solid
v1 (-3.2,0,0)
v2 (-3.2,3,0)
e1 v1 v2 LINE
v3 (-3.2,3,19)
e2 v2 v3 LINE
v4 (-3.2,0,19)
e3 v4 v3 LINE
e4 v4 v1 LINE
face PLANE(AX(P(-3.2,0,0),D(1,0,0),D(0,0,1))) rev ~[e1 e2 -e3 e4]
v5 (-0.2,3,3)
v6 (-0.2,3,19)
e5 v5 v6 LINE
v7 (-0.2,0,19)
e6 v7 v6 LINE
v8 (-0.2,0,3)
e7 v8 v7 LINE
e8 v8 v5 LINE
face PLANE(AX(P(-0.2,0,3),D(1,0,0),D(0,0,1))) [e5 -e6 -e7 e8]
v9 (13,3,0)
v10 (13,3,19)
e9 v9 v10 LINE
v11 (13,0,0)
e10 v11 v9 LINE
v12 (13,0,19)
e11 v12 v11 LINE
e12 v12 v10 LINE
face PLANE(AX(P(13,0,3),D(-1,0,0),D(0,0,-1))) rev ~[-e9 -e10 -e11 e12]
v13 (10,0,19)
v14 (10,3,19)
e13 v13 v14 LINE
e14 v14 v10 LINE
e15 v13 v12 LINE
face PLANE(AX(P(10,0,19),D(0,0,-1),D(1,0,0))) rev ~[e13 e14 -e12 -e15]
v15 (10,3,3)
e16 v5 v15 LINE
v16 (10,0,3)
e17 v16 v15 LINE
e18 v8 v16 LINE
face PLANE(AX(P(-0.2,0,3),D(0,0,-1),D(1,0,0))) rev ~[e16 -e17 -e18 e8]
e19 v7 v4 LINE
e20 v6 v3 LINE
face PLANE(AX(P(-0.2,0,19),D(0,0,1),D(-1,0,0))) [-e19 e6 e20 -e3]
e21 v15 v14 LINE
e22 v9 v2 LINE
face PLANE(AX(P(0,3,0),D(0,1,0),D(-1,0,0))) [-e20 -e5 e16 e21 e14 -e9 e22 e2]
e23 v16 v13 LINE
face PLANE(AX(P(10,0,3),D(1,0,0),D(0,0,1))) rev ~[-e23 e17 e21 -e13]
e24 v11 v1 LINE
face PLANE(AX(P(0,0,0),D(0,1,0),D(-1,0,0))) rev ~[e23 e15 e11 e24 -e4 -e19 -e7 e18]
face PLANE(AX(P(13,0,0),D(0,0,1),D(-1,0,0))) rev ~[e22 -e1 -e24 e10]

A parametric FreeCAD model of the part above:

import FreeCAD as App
import Part
import Sketcher


def add_polygon(sketch, points):
    """Adds a closed chain of lines whose ends are joined by coincident constraints."""
    first, n = sketch.GeometryCount, len(points)
    for a, b in zip(points, points[1:] + points[:1]):
        sketch.addGeometry(Part.LineSegment(App.Vector(*a, 0), App.Vector(*b, 0)), False)
    for i in range(n):
        sketch.addConstraint(Sketcher.Constraint("Coincident", first + i, 2, first + (i + 1) % n, 1))

doc = App.newDocument("Part")
body = doc.addObject("PartDesign::Body", "Body")

# Sketch on XZ plane
sketch1 = body.newObject("Sketcher::SketchObject", "Sketch")
sketch1.AttachmentSupport = (doc.getObject("XZ_Plane"), [""])
sketch1.MapMode = "FlatFace"
add_polygon(sketch1, [(13, 0), (-3.2, 0), (-3.2, 19), (-0.2, 19), (-0.2, 3), (10, 3), (10, 19), (13, 19)])  # lines 0-7
sketch1.addConstraint(Sketcher.Constraint("Horizontal", 0))
sketch1.addConstraint(Sketcher.Constraint("Vertical", 1))
sketch1.addConstraint(Sketcher.Constraint("Horizontal", 2))
sketch1.addConstraint(Sketcher.Constraint("Vertical", 3))
sketch1.addConstraint(Sketcher.Constraint("Horizontal", 4))
sketch1.addConstraint(Sketcher.Constraint("Vertical", 5))
sketch1.addConstraint(Sketcher.Constraint("Horizontal", 6))
sketch1.addConstraint(Sketcher.Constraint("Vertical", 7))
sketch1.addConstraint(Sketcher.Constraint("PointOnObject", 0, 2, -1))
sketch1.addConstraint(Sketcher.Constraint("Horizontal", 2, 2, 5, 2))
sketch1.addConstraint(Sketcher.Constraint("Equal", 2, 6))
sketch1.addConstraint(Sketcher.Constraint("DistanceX", 2, 1, 2, 2, 3.0))
sketch1.addConstraint(Sketcher.Constraint("DistanceY", 3, 2, 3, 1, 16.0))
sketch1.addConstraint(Sketcher.Constraint("DistanceX", 0, 2, 0, 1, 16.2))
sketch1.addConstraint(Sketcher.Constraint("DistanceY", -1, 1, 3, 2, 3.0))
sketch1.addConstraint(Sketcher.Constraint("DistanceX", -1, 1, 4, 2, 10.0))
pad1 = body.newObject("PartDesign::Pad", "Pad")
pad1.Profile = sketch1
pad1.Length = 3
pad1.Reversed = True

doc.recompute()
